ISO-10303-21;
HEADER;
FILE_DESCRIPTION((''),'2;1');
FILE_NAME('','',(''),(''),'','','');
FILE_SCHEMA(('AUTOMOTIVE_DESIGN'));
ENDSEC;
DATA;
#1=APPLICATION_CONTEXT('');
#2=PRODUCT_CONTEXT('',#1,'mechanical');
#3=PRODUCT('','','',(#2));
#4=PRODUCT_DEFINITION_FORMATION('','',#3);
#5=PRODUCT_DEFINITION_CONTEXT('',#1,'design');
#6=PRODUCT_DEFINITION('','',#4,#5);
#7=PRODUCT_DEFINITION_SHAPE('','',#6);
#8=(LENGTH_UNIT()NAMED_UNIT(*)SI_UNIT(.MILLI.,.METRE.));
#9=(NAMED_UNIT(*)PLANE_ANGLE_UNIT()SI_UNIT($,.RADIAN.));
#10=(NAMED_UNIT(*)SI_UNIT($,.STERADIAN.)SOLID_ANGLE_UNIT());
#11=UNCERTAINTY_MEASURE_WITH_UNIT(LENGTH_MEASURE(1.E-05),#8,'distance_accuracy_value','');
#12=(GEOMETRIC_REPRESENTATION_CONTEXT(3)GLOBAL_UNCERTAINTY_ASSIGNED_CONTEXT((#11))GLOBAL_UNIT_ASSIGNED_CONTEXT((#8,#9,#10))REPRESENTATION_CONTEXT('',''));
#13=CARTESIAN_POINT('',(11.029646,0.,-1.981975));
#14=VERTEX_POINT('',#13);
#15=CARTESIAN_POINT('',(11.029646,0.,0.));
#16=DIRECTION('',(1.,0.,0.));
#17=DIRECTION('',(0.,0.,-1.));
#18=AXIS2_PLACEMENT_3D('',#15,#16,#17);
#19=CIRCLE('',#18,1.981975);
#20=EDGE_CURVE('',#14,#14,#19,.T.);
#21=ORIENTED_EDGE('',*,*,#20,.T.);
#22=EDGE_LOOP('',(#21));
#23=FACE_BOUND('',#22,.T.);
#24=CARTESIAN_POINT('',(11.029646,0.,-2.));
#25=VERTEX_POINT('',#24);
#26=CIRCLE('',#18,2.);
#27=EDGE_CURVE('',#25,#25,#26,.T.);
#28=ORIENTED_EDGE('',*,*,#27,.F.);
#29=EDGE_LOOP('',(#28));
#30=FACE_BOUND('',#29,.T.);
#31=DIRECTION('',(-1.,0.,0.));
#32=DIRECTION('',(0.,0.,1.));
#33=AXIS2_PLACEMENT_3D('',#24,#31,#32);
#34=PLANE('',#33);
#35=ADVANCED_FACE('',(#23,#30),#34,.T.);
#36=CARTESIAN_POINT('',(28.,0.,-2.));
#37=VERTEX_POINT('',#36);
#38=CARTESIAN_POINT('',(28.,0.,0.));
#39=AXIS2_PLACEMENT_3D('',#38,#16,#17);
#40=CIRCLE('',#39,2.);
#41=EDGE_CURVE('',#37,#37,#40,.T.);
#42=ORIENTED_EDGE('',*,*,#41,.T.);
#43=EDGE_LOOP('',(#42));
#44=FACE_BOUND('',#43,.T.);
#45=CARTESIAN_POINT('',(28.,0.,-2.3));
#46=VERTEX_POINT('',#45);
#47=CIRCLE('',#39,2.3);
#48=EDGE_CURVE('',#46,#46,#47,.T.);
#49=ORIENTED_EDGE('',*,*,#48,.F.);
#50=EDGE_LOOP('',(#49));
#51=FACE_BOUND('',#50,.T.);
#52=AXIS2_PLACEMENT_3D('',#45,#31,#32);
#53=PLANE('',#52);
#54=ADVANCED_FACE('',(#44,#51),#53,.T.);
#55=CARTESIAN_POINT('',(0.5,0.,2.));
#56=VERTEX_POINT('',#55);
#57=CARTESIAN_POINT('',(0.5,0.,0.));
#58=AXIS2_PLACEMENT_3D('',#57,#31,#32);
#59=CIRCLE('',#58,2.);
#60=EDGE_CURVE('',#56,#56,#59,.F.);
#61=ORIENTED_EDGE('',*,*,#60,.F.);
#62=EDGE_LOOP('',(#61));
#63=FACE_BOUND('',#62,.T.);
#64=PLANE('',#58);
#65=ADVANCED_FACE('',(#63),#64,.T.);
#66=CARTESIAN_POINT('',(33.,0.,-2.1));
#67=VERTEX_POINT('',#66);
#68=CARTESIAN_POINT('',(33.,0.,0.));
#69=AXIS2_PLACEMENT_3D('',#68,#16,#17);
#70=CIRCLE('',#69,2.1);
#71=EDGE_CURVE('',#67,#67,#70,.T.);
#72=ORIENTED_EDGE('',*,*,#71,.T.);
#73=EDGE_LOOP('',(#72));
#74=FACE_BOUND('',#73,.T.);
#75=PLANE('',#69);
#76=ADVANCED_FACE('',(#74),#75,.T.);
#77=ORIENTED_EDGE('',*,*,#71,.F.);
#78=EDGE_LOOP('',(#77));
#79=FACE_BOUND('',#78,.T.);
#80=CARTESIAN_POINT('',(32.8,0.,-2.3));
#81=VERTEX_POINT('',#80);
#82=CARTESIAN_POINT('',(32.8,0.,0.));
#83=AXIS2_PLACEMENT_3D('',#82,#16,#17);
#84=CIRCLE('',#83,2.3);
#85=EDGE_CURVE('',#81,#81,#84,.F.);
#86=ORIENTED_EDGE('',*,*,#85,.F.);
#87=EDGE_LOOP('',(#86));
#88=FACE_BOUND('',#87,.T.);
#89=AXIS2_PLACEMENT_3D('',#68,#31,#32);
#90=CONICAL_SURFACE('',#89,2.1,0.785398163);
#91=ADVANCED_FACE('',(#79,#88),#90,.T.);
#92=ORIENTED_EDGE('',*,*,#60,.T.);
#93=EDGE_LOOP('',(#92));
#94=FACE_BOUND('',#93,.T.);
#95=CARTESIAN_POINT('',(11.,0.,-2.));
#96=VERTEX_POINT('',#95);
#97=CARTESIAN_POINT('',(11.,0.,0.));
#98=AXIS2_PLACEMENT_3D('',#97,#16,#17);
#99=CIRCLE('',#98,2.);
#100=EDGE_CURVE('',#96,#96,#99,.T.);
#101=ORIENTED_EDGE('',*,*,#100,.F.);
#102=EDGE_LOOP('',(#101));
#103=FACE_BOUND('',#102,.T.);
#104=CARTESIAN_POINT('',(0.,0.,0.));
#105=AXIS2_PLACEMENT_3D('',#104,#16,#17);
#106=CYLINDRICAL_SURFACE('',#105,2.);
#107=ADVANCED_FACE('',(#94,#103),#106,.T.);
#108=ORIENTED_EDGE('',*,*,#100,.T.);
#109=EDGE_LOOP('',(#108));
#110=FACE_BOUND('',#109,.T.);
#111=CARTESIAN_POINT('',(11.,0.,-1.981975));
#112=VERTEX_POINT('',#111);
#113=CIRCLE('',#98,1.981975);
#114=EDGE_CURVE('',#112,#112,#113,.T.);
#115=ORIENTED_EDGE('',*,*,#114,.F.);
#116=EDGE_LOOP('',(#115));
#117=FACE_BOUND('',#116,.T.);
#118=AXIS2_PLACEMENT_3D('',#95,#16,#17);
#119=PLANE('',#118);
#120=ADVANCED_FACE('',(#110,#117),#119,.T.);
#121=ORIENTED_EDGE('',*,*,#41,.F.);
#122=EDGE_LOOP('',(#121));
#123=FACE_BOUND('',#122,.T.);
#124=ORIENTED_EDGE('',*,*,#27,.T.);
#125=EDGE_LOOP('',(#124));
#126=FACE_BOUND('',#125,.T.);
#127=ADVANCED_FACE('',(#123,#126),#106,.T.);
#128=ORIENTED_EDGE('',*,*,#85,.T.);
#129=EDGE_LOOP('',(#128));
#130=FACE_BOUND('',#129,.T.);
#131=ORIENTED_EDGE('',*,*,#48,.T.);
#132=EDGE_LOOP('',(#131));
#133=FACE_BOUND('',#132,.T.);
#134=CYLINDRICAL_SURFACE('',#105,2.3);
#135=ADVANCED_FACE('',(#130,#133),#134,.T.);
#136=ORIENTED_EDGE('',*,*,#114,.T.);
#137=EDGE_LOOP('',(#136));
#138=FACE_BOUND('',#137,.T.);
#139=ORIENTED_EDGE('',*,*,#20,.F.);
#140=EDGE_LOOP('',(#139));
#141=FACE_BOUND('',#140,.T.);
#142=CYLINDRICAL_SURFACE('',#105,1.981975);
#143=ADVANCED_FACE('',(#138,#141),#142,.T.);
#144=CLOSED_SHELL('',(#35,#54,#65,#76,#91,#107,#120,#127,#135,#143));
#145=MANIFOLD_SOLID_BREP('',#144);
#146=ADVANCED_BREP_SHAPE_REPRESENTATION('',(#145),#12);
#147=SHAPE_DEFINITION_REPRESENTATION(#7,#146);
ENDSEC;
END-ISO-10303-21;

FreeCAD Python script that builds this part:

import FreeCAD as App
import Part
import Sketcher
from FreeCAD import Vector
Q = App.Units.Quantity


def edges_at(feature, points):
    """Names of the edges that pass closest to the given points."""
    edges = feature.Shape.Edges
    near = lambda p: min(range(len(edges)), key=lambda i: edges[i].distToShape(Part.Vertex(*p))[0])
    return sorted({f"Edge{near(p) + 1}" for p in points})

doc = App.newDocument("Part")
body = doc.addObject("PartDesign::Body", "Body")

# Sketch on XZ plane
sketch1 = doc.addObject("Sketcher::SketchObject", "Sketch")
body.addObject(sketch1)
sketch1.AttachmentSupport = (doc.XZ_Plane, [""])
sketch1.MapMode = "FlatFace"
sketch1.addGeometry([
    Part.LineSegment(Vector(0, 0, 0), Vector(33, 0, 0)),  # 0
    Part.LineSegment(Vector(33, 0, 0), Vector(33, -2.3, 0)),  # 1
    Part.LineSegment(Vector(33, -2.3, 0), Vector(28, -2.3, 0)),  # 2
    Part.LineSegment(Vector(28, -2.3, 0), Vector(28, -2, 0)),  # 3
    Part.LineSegment(Vector(28, -2, 0), Vector(11.03, -2, 0)),  # 4
    Part.LineSegment(Vector(11.03, -2, 0), Vector(11.03, -1.982, 0)),  # 5
    Part.LineSegment(Vector(11.03, -1.982, 0), Vector(11, -1.982, 0)),  # 6
    Part.LineSegment(Vector(11, -1.982, 0), Vector(11, -2, 0)),  # 7
    Part.LineSegment(Vector(11, -2, 0), Vector(0, -2, 0)),  # 8
    Part.LineSegment(Vector(0, -2, 0), Vector(0, 0, 0)),  # 9
], False)
sketch1.addConstraint([
    Sketcher.Constraint("Coincident", 0, 2, 1, 1),
    Sketcher.Constraint("Coincident", 1, 2, 2, 1),
    Sketcher.Constraint("Coincident", 2, 2, 3, 1),
    Sketcher.Constraint("Coincident", 3, 2, 4, 1),
    Sketcher.Constraint("Coincident", 4, 2, 5, 1),
    Sketcher.Constraint("Coincident", 5, 2, 6, 1),
    Sketcher.Constraint("Coincident", 6, 2, 7, 1),
    Sketcher.Constraint("Coincident", 7, 2, 8, 1),
    Sketcher.Constraint("Coincident", 8, 2, 9, 1),
    Sketcher.Constraint("Coincident", 9, 2, 0, 1),
    Sketcher.Constraint("Horizontal", 0),
    Sketcher.Constraint("Vertical", 1),
    Sketcher.Constraint("Horizontal", 2),
    Sketcher.Constraint("Vertical", 3),
    Sketcher.Constraint("Horizontal", 4),
    Sketcher.Constraint("Vertical", 5),
    Sketcher.Constraint("Horizontal", 6),
    Sketcher.Constraint("Vertical", 7),
    Sketcher.Constraint("Horizontal", 8),
    Sketcher.Constraint("Vertical", 9),
    Sketcher.Constraint("Coincident", 9, 2, -1, 1),
    Sketcher.Constraint("Horizontal", 4, 2, 7, 2),
    Sketcher.Constraint("DistanceX", 0, 1, 0, 2, Q("33 mm")),
    Sketcher.Constraint("DistanceX", 2, 2, 2, 1, Q("5 mm")),
    Sketcher.Constraint("DistanceX", 8, 2, 8, 1, Q("11 mm")),
    Sketcher.Constraint("DistanceY", 9, 1, 9, 2, Q("2 mm")),
    Sketcher.Constraint("DistanceY", 1, 2, 1, 1, Q("2.3 mm")),
    Sketcher.Constraint("DistanceX", 4, 2, 4, 1, Q("16.970354 mm")),
    Sketcher.Constraint("DistanceY", 5, 1, 5, 2, Q("0.018025 mm")),
])
revolution = doc.addObject("PartDesign::Revolution", "Revolution")
body.addObject(revolution)
revolution.Profile = sketch1
revolution.ReferenceAxis = (sketch1, ["H_Axis"])
revolution.Angle = 360
doc.recompute()

chamfer = doc.addObject("PartDesign::Chamfer", "Chamfer")
body.addObject(chamfer)
chamfer.Base = (revolution, edges_at(revolution, [(33, 0, 2.3)]))
chamfer.Size = 0.2

# Sketch on YZ plane
sketch2 = doc.addObject("Sketcher::SketchObject", "Sketch001")
body.addObject(sketch2)
sketch2.AttachmentSupport = (doc.YZ_Plane, [""])
sketch2.MapMode = "FlatFace"
sketch2.addGeometry(Part.Circle(Vector(0, 0, 0), Vector(0, 0, 1), 2.6), False)
sketch2.addConstraint([
    Sketcher.Constraint("Coincident", 0, 3, -1, 1),
    Sketcher.Constraint("Diameter", 0, Q("5.254686 mm")),
])
pocket1 = doc.addObject("PartDesign::Pocket", "Pocket")
body.addObject(pocket1)
pocket1.Profile = sketch2
pocket1.Length = 0.5
pocket1.Reversed = True

doc.recompute()
